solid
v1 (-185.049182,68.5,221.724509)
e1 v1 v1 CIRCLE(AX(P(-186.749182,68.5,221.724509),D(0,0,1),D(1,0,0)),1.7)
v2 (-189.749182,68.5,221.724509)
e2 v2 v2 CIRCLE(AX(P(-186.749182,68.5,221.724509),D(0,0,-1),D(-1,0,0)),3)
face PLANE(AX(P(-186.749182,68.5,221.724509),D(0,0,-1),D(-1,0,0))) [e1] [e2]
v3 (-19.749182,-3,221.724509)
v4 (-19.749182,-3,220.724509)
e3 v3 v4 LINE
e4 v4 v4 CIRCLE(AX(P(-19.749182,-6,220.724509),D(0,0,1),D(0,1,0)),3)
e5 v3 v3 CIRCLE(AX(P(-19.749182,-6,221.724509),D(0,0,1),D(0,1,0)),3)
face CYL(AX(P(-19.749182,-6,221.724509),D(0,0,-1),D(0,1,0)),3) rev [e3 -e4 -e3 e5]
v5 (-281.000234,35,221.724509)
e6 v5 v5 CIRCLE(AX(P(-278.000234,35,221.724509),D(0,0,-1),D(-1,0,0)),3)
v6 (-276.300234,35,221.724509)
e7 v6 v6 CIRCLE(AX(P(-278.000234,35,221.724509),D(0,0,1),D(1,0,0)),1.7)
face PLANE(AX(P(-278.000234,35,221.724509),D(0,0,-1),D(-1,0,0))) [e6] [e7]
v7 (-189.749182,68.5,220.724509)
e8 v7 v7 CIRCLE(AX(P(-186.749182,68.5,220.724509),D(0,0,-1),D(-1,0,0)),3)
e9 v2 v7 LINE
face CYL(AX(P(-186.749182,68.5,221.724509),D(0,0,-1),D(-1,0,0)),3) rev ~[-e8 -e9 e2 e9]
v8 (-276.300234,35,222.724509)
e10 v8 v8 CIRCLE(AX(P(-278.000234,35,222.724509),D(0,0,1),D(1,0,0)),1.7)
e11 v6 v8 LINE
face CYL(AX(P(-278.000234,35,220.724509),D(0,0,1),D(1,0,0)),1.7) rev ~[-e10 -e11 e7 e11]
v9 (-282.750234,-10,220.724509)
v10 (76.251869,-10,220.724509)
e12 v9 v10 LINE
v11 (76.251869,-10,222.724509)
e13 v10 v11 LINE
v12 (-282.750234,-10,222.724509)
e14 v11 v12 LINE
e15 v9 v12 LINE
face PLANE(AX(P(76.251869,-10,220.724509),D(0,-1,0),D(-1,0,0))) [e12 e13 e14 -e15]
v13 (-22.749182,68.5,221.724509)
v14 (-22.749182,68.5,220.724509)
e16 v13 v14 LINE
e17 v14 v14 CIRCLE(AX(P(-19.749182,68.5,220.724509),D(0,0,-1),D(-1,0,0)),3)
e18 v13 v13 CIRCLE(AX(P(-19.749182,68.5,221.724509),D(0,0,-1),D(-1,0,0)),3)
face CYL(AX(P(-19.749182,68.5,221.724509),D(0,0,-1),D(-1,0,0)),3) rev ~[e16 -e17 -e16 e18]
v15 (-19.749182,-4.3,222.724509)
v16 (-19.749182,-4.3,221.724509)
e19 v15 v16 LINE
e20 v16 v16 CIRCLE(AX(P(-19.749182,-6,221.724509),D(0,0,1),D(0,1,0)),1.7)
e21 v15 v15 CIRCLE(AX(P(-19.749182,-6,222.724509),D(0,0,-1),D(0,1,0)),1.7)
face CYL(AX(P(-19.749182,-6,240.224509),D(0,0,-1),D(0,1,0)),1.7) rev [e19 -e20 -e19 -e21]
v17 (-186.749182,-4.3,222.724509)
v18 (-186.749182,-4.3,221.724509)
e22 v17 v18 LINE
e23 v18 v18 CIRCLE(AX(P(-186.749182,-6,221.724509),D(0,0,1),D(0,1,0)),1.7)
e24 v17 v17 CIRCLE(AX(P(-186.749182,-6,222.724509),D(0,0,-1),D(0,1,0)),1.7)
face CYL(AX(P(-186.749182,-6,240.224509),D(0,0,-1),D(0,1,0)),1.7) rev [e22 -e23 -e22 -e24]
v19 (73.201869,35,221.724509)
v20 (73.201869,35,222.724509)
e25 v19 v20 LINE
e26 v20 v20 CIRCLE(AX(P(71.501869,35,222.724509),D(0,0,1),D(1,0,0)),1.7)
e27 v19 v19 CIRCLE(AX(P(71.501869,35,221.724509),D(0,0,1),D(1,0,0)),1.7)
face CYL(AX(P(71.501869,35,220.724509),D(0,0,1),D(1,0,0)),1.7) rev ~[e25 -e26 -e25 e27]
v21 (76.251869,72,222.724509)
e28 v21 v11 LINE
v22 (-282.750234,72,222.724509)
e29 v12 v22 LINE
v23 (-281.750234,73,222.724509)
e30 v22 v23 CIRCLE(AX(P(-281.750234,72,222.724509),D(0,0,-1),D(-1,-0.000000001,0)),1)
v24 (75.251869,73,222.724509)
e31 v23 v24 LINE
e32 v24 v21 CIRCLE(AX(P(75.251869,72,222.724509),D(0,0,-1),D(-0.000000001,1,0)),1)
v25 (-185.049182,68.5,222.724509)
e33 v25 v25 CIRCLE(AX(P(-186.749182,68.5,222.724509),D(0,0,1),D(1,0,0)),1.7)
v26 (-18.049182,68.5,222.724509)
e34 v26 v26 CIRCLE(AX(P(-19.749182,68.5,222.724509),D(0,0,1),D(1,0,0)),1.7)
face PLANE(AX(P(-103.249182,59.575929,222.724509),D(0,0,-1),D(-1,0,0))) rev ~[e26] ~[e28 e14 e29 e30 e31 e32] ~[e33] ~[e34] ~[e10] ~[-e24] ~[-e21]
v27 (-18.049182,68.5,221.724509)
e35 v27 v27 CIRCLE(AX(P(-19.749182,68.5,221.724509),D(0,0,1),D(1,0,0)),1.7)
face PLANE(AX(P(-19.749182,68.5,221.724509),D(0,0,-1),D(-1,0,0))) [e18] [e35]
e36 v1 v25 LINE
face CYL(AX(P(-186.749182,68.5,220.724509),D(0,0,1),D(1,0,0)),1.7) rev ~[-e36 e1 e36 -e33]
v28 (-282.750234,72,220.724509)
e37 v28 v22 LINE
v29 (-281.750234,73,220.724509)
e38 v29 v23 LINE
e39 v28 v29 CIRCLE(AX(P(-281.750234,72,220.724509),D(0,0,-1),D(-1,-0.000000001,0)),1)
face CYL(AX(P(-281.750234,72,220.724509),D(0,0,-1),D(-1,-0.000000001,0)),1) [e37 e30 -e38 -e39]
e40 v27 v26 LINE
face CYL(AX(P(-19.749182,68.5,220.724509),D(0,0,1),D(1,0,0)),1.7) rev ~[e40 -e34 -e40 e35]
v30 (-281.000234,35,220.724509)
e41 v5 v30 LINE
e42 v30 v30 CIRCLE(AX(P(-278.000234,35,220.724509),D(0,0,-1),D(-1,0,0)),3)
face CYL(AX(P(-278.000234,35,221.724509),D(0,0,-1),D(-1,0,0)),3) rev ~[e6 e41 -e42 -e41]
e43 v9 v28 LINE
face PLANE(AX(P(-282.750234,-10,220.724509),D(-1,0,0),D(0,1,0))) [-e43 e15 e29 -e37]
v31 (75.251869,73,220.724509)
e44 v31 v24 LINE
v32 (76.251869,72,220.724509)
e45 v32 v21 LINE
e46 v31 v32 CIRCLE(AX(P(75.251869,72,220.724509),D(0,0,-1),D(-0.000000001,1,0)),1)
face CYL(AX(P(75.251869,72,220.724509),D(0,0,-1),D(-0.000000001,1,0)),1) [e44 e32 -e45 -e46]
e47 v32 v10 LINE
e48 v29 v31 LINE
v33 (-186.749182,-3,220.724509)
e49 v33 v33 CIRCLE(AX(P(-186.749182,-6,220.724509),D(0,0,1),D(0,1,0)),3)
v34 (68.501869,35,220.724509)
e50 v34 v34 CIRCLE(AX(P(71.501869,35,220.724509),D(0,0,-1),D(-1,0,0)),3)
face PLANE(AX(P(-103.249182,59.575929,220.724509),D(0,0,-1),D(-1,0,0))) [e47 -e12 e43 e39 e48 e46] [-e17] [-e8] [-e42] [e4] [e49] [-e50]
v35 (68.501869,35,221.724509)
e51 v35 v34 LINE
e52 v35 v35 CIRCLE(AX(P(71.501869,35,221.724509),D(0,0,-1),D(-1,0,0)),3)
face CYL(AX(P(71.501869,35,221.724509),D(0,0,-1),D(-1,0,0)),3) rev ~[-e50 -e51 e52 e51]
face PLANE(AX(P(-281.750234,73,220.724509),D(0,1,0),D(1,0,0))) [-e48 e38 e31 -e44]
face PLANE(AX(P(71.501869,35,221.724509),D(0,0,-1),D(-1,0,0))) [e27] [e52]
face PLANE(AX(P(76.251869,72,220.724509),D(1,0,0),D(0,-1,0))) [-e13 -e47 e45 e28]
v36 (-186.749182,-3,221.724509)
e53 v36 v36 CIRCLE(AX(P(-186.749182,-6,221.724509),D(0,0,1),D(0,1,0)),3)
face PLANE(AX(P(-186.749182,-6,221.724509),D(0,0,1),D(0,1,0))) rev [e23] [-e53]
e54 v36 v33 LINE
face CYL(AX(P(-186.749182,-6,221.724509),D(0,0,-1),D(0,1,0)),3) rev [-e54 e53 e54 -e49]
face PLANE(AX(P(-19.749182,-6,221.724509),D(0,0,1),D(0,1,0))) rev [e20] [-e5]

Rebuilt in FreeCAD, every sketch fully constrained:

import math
import FreeCAD as App
import Part
import Sketcher
Q = App.Units.Quantity


def add_polygon(sketch, points):
    """Adds a closed chain of lines whose ends are joined by coincident constraints."""
    first, n = sketch.GeometryCount, len(points)
    for a, b in zip(points, points[1:] + points[:1]):
        sketch.addGeometry(Part.LineSegment(App.Vector(*a, 0), App.Vector(*b, 0)), False)
    for i in range(n):
        sketch.addConstraint(Sketcher.Constraint("Coincident", first + i, 2, first + (i + 1) % n, 1))

doc = App.newDocument("Part")
body = doc.addObject("PartDesign::Body", "Body")

# Sketch on XY plane
sketch1 = doc.addObject("Sketcher::SketchObject", "Sketch")
body.addObject(sketch1)
sketch1.AttachmentSupport = (doc.XY_Plane, [""])
sketch1.MapMode = "FlatFace"
sketch1.AttachmentOffset = App.Placement(App.Vector(0, 0, 222.724509), App.Rotation())
sketch1.addGeometry(Part.LineSegment(App.Vector(76.3, -10, 0), App.Vector(-282.8, -10, 0)), False)
sketch1.addGeometry(Part.LineSegment(App.Vector(-282.8, -10, 0), App.Vector(-282.8, 70, 0)), False)
sketch1.addGeometry(Part.ArcOfCircle(Part.Circle(App.Vector(-279.8, 70, 0), App.Vector(0, 0, 1), 3), math.radians(90), math.radians(180)), False)
sketch1.addGeometry(Part.LineSegment(App.Vector(-279.8, 73, 0), App.Vector(73.3, 73, 0)), False)
sketch1.addGeometry(Part.ArcOfCircle(Part.Circle(App.Vector(73.3, 70, 0), App.Vector(0, 0, 1), 3), math.radians(0), math.radians(90)), False)
sketch1.addGeometry(Part.LineSegment(App.Vector(76.3, 70, 0), App.Vector(76.3, -10, 0)), False)
sketch1.addConstraint(Sketcher.Constraint("Coincident", 0, 2, 1, 1))
sketch1.addConstraint(Sketcher.Constraint("Tangent", 1, 2, 2, 2))
sketch1.addConstraint(Sketcher.Constraint("Tangent", 2, 1, 3, 1))
sketch1.addConstraint(Sketcher.Constraint("Tangent", 3, 2, 4, 2))
sketch1.addConstraint(Sketcher.Constraint("Tangent", 4, 1, 5, 1))
sketch1.addConstraint(Sketcher.Constraint("Coincident", 5, 2, 0, 1))
sketch1.addConstraint(Sketcher.Constraint("Horizontal", 0))
sketch1.addConstraint(Sketcher.Constraint("Vertical", 1))
sketch1.addConstraint(Sketcher.Constraint("Horizontal", 3))
sketch1.addConstraint(Sketcher.Constraint("Vertical", 5))
sketch1.addConstraint(Sketcher.Constraint("Equal", 2, 4))
sketch1.addConstraint(Sketcher.Constraint("Radius", 2, 3.0))
sketch1.addConstraint(Sketcher.Constraint("DistanceY", 1, 1, 1, 2, 80.0))
sketch1.addConstraint(Sketcher.Constraint("DistanceY", -1, 1, 2, 3, 70.0))
sketch1.addConstraint(Sketcher.Constraint("DistanceX", 0, 2, 0, 1, 359.002103))
sketch1.addConstraint(Sketcher.Constraint("DistanceX", -1, 1, 4, 3, 73.251869))
pad1 = doc.addObject("PartDesign::Pad", "Pad")
body.addObject(pad1)
pad1.Profile = sketch1
pad1.Length = 2
pad1.Reversed = True

# Sketch on XY plane
sketch2 = doc.addObject("Sketcher::SketchObject", "Sketch001")
body.addObject(sketch2)
sketch2.AttachmentSupport = (doc.XY_Plane, [""])
sketch2.MapMode = "FlatFace"
sketch2.AttachmentOffset = App.Placement(App.Vector(0, 0, 220.724509), App.Rotation())
sketch2.addGeometry(Part.Circle(App.Vector(71.501869, 35, 0), App.Vector(0, 0, 1), 1.7), False)
sketch2.addGeometry(Part.Circle(App.Vector(-19.749182, 68.5, 0), App.Vector(0, 0, 1), 1.7), False)
sketch2.addGeometry(Part.Circle(App.Vector(-186.749182, 68.5, 0), App.Vector(0, 0, 1), 1.7), False)
sketch2.addGeometry(Part.Circle(App.Vector(-278.000234, 35, 0), App.Vector(0, 0, 1), 1.7), False)
sketch2.addConstraint(Sketcher.Constraint("Equal", 0, 1))
sketch2.addConstraint(Sketcher.Constraint("Equal", 1, 2))
sketch2.addConstraint(Sketcher.Constraint("Equal", 2, 3))
sketch2.addConstraint(Sketcher.Constraint("Horizontal", 1, 3, 2, 3))
sketch2.addConstraint(Sketcher.Constraint("Horizontal", 0, 3, 3, 3))
sketch2.addConstraint(Sketcher.Constraint("Diameter", 0, 3.4))
sketch2.addConstraint(Sketcher.Constraint("DistanceY", -1, 1, 0, 3, 35.0))
sketch2.addConstraint(Sketcher.Constraint("DistanceX", 2, 3, 1, 3, 167.0))
sketch2.addConstraint(Sketcher.Constraint("DistanceY", -1, 1, 1, 3, 68.5))
sketch2.addConstraint(Sketcher.Constraint("DistanceX", -1, 1, 0, 3, 71.501869))
sketch2.addConstraint(Sketcher.Constraint("DistanceX", 1, 3, 0, 3, 91.251052))
sketch2.addConstraint(Sketcher.Constraint("DistanceX", 3, 3, 2, 3, 91.251052))
doc.recompute()
hole = doc.addObject("PartDesign::Hole", "Hole")
body.addObject(hole)
hole.Profile = sketch2
hole.ThreadType = "None"
hole.Diameter = 3.4
hole.DepthType = "Dimension"
hole.Depth = 7.5
hole.DrillPoint = "Angled"
hole.DrillPointAngle = 118
hole.HoleCutType = "Counterbore"
hole.HoleCutDiameter = 6
hole.HoleCutDepth = 1
hole.Reversed = True

# Sketch on XY plane
sketch3 = doc.addObject("Sketcher::SketchObject", "Sketch002")
body.addObject(sketch3)
sketch3.AttachmentSupport = (doc.XY_Plane, [""])
sketch3.MapMode = "FlatFace"
sketch3.AttachmentOffset = App.Placement(App.Vector(0, 0, 220.724509), App.Rotation())
sketch3.addGeometry(Part.LineSegment(App.Vector(76.3, 70, 0), App.Vector(76.3, -10, 0)), False)
sketch3.addGeometry(Part.LineSegment(App.Vector(76.3, -10, 0), App.Vector(75.8, -10, 0)), False)
sketch3.addGeometry(Part.LineSegment(App.Vector(75.8, -10, 0), App.Vector(75.8, 70, 0)), False)
sketch3.addGeometry(Part.ArcOfCircle(Part.Circle(App.Vector(73.3, 70, 0), App.Vector(0, 0, 1), 2.5), math.radians(0), math.radians(90)), False)
sketch3.addGeometry(Part.LineSegment(App.Vector(73.3, 72.5, 0), App.Vector(-279.8, 72.5, 0)), False)
sketch3.addGeometry(Part.ArcOfCircle(Part.Circle(App.Vector(-279.8, 70, 0), App.Vector(0, 0, 1), 2.5), math.radians(90), math.radians(180)), False)
sketch3.addGeometry(Part.LineSegment(App.Vector(-282.3, 70, 0), App.Vector(-282.3, -10, 0)), False)
sketch3.addGeometry(Part.LineSegment(App.Vector(-282.3, -10, 0), App.Vector(-282.8, -10, 0)), False)
sketch3.addGeometry(Part.LineSegment(App.Vector(-282.8, -10, 0), App.Vector(-282.8, 70, 0)), False)
sketch3.addGeometry(Part.ArcOfCircle(Part.Circle(App.Vector(-279.8, 70, 0), App.Vector(0, 0, 1), 3), math.radians(90), math.radians(180)), False)
sketch3.addGeometry(Part.LineSegment(App.Vector(-279.8, 73, 0), App.Vector(73.3, 73, 0)), False)
sketch3.addGeometry(Part.ArcOfCircle(Part.Circle(App.Vector(73.3, 70, 0), App.Vector(0, 0, 1), 3), math.radians(0), math.radians(90)), False)
sketch3.addConstraint(Sketcher.Constraint("Coincident", 0, 2, 1, 1))
sketch3.addConstraint(Sketcher.Constraint("Coincident", 1, 2, 2, 1))
sketch3.addConstraint(Sketcher.Constraint("Tangent", 2, 2, 3, 1))
sketch3.addConstraint(Sketcher.Constraint("Tangent", 3, 2, 4, 1))
sketch3.addConstraint(Sketcher.Constraint("Tangent", 4, 2, 5, 1))
sketch3.addConstraint(Sketcher.Constraint("Tangent", 5, 2, 6, 1))
sketch3.addConstraint(Sketcher.Constraint("Coincident", 6, 2, 7, 1))
sketch3.addConstraint(Sketcher.Constraint("Coincident", 7, 2, 8, 1))
sketch3.addConstraint(Sketcher.Constraint("Tangent", 8, 2, 9, 2))
sketch3.addConstraint(Sketcher.Constraint("Tangent", 9, 1, 10, 1))
sketch3.addConstraint(Sketcher.Constraint("Tangent", 10, 2, 11, 2))
sketch3.addConstraint(Sketcher.Constraint("Tangent", 11, 1, 0, 1))
sketch3.addConstraint(Sketcher.Constraint("Vertical", 0))
sketch3.addConstraint(Sketcher.Constraint("Horizontal", 1))
sketch3.addConstraint(Sketcher.Constraint("Vertical", 2))
sketch3.addConstraint(Sketcher.Constraint("Horizontal", 4))
sketch3.addConstraint(Sketcher.Constraint("Vertical", 6))
sketch3.addConstraint(Sketcher.Constraint("Horizontal", 7))
sketch3.addConstraint(Sketcher.Constraint("Vertical", 8))
sketch3.addConstraint(Sketcher.Constraint("Horizontal", 10))
sketch3.addConstraint(Sketcher.Constraint("Coincident", 9, 3, 5, 3))
sketch3.addConstraint(Sketcher.Constraint("Coincident", 11, 3, 3, 3))
sketch3.addConstraint(Sketcher.Constraint("Equal", 3, 5))
sketch3.addConstraint(Sketcher.Constraint("Horizontal", 1, 2, 6, 2))
sketch3.addConstraint(Sketcher.Constraint("Radius", 9, 3.0))
sketch3.addConstraint(Sketcher.Constraint("Radius", 3, 2.5))
sketch3.addConstraint(Sketcher.Constraint("DistanceY", 0, 2, 0, 1, 80.0))
sketch3.addConstraint(Sketcher.Constraint("DistanceY", -1, 1, 3, 3, 70.0))
sketch3.addConstraint(Sketcher.Constraint("DistanceX", 4, 2, 4, 1, 353.002103))
sketch3.addConstraint(Sketcher.Constraint("DistanceX", -1, 1, 3, 3, 73.251869))
pocket1 = doc.addObject("PartDesign::Pocket", "Pocket")
body.addObject(pocket1)
pocket1.Profile = sketch3
pocket1.Type = "ThroughAll"
pocket1.Reversed = True

# Sketch on YZ plane
sketch4 = doc.addObject("Sketcher::SketchObject", "Sketch003")
body.addObject(sketch4)
sketch4.AttachmentSupport = (doc.YZ_Plane, [""])
sketch4.MapMode = "FlatFace"
sketch4.AttachmentOffset = App.Placement(App.Vector(0, 0, -19.749182), App.Rotation())
add_polygon(sketch4, [(-6, 241.2), (-6, 220.7), (-3, 220.7), (-3, 221.7), (-4.3, 221.7), (-4.3, 240.2)])  # lines 0-5
sketch4.addGeometry(Part.LineSegment(App.Vector(-6, 220.7, 0), App.Vector(-6, 241.2, 0)), True)  # axis
sketch4.addConstraint(Sketcher.Constraint("Vertical", 0))
sketch4.addConstraint(Sketcher.Constraint("Horizontal", 1))
sketch4.addConstraint(Sketcher.Constraint("Vertical", 2))
sketch4.addConstraint(Sketcher.Constraint("Horizontal", 3))
sketch4.addConstraint(Sketcher.Constraint("Vertical", 4))
sketch4.addConstraint(Sketcher.Constraint("Vertical", 6))
sketch4.addConstraint(Sketcher.Constraint("Coincident", 6, 1, 0, 2))
sketch4.addConstraint(Sketcher.Constraint("Equal", 0, 6))
sketch4.addConstraint(Sketcher.Constraint("DistanceX", 1, 1, 1, 2, 3.0))
sketch4.addConstraint(Sketcher.Constraint("DistanceY", 2, 1, 2, 2, 1.0))
sketch4.addConstraint(Sketcher.Constraint("Angle", 5, Q("149 deg")))
sketch4.addConstraint(Sketcher.Constraint("DistanceX", 3, 2, 3, 1, 1.3))
sketch4.addConstraint(Sketcher.Constraint("DistanceY", 4, 1, 4, 2, 18.5))
sketch4.addConstraint(Sketcher.Constraint("DistanceX", 0, 2, -1, 1, 6.0))
sketch4.addConstraint(Sketcher.Constraint("DistanceY", -1, 1, 0, 2, 220.724509))
groove = doc.addObject("PartDesign::Groove", "Groove")
body.addObject(groove)
groove.Profile = sketch4
groove.ReferenceAxis = (sketch4, ["Axis0"])
groove.Angle = 360
doc.recompute()

linearpattern = doc.addObject("PartDesign::LinearPattern", "LinearPattern")
body.addObject(linearpattern)
linearpattern.Originals = [groove]
linearpattern.Direction = (doc.X_Axis, [""])
linearpattern.Mode = "offset"
linearpattern.Offset = 167
linearpattern.Occurrences = 2
linearpattern.Reversed = True
body.Tip = linearpattern

# Sketch on XY plane
sketch5 = doc.addObject("Sketcher::SketchObject", "Sketch004")
body.addObject(sketch5)
sketch5.AttachmentSupport = (doc.XY_Plane, [""])
sketch5.MapMode = "FlatFace"
sketch5.AttachmentOffset = App.Placement(App.Vector(0, 0, 220.724509), App.Rotation())
sketch5.addGeometry(Part.LineSegment(App.Vector(76.3, 72, 0), App.Vector(76.3, -10, 0)), False)
sketch5.addGeometry(Part.LineSegment(App.Vector(76.3, -10, 0), App.Vector(75.8, -10, 0)), False)
sketch5.addGeometry(Part.LineSegment(App.Vector(75.8, -10, 0), App.Vector(75.8, 70, 0)), False)
sketch5.addGeometry(Part.ArcOfCircle(Part.Circle(App.Vector(73.3, 70, 0), App.Vector(0, 0, 1), 2.5), math.radians(0), math.radians(90)), False)
sketch5.addGeometry(Part.LineSegment(App.Vector(73.3, 72.5, 0), App.Vector(-279.8, 72.5, 0)), False)
sketch5.addGeometry(Part.ArcOfCircle(Part.Circle(App.Vector(-279.8, 70, 0), App.Vector(0, 0, 1), 2.5), math.radians(90), math.radians(180)), False)
sketch5.addGeometry(Part.LineSegment(App.Vector(-282.3, 70, 0), App.Vector(-282.3, -10, 0)), False)
sketch5.addGeometry(Part.LineSegment(App.Vector(-282.3, -10, 0), App.Vector(-282.8, -10, 0)), False)
sketch5.addGeometry(Part.LineSegment(App.Vector(-282.8, -10, 0), App.Vector(-282.8, 72, 0)), False)
sketch5.addGeometry(Part.ArcOfCircle(Part.Circle(App.Vector(-281.8, 72, 0), App.Vector(0, 0, 1), 1), math.radians(90), math.radians(180)), False)
sketch5.addGeometry(Part.LineSegment(App.Vector(-281.8, 73, 0), App.Vector(75.3, 73, 0)), False)
sketch5.addGeometry(Part.ArcOfCircle(Part.Circle(App.Vector(75.3, 72, 0), App.Vector(0, 0, 1), 1), math.radians(0), math.radians(90)), False)
sketch5.addConstraint(Sketcher.Constraint("Coincident", 0, 2, 1, 1))
sketch5.addConstraint(Sketcher.Constraint("Coincident", 1, 2, 2, 1))
sketch5.addConstraint(Sketcher.Constraint("Tangent", 2, 2, 3, 1))
sketch5.addConstraint(Sketcher.Constraint("Tangent", 3, 2, 4, 1))
sketch5.addConstraint(Sketcher.Constraint("Tangent", 4, 2, 5, 1))
sketch5.addConstraint(Sketcher.Constraint("Tangent", 5, 2, 6, 1))
sketch5.addConstraint(Sketcher.Constraint("Coincident", 6, 2, 7, 1))
sketch5.addConstraint(Sketcher.Constraint("Coincident", 7, 2, 8, 1))
sketch5.addConstraint(Sketcher.Constraint("Tangent", 8, 2, 9, 2))
sketch5.addConstraint(Sketcher.Constraint("Tangent", 9, 1, 10, 1))
sketch5.addConstraint(Sketcher.Constraint("Tangent", 10, 2, 11, 2))
sketch5.addConstraint(Sketcher.Constraint("Tangent", 11, 1, 0, 1))
sketch5.addConstraint(Sketcher.Constraint("Vertical", 0))
sketch5.addConstraint(Sketcher.Constraint("Horizontal", 1))
sketch5.addConstraint(Sketcher.Constraint("Vertical", 2))
sketch5.addConstraint(Sketcher.Constraint("Horizontal", 4))
sketch5.addConstraint(Sketcher.Constraint("Vertical", 6))
sketch5.addConstraint(Sketcher.Constraint("Horizontal", 7))
sketch5.addConstraint(Sketcher.Constraint("Vertical", 8))
sketch5.addConstraint(Sketcher.Constraint("Horizontal", 10))
sketch5.addConstraint(Sketcher.Constraint("Equal", 3, 5))
sketch5.addConstraint(Sketcher.Constraint("Equal", 9, 11))
sketch5.addConstraint(Sketcher.Constraint("Horizontal", 1, 2, 6, 2))
sketch5.addConstraint(Sketcher.Constraint("Equal", 1, 7))
sketch5.addConstraint(Sketcher.Constraint("Radius", 9, 1.0))
sketch5.addConstraint(Sketcher.Constraint("Radius", 3, 2.5))
sketch5.addConstraint(Sketcher.Constraint("DistanceY", 0, 2, 0, 1, 82.0))
sketch5.addConstraint(Sketcher.Constraint("DistanceY", 2, 1, 2, 2, 80.0))
sketch5.addConstraint(Sketcher.Constraint("DistanceX", 1, 2, 1, 1, 0.5))
sketch5.addConstraint(Sketcher.Constraint("DistanceY", -1, 1, 3, 3, 70.0))
sketch5.addConstraint(Sketcher.Constraint("DistanceX", 4, 2, 4, 1, 353.002103))
sketch5.addConstraint(Sketcher.Constraint("DistanceX", -1, 1, 3, 3, 73.251869))
pad2 = doc.addObject("PartDesign::Pad", "Pad001")
body.addObject(pad2)
pad2.Profile = sketch5
pad2.Length = 2

doc.recompute()
